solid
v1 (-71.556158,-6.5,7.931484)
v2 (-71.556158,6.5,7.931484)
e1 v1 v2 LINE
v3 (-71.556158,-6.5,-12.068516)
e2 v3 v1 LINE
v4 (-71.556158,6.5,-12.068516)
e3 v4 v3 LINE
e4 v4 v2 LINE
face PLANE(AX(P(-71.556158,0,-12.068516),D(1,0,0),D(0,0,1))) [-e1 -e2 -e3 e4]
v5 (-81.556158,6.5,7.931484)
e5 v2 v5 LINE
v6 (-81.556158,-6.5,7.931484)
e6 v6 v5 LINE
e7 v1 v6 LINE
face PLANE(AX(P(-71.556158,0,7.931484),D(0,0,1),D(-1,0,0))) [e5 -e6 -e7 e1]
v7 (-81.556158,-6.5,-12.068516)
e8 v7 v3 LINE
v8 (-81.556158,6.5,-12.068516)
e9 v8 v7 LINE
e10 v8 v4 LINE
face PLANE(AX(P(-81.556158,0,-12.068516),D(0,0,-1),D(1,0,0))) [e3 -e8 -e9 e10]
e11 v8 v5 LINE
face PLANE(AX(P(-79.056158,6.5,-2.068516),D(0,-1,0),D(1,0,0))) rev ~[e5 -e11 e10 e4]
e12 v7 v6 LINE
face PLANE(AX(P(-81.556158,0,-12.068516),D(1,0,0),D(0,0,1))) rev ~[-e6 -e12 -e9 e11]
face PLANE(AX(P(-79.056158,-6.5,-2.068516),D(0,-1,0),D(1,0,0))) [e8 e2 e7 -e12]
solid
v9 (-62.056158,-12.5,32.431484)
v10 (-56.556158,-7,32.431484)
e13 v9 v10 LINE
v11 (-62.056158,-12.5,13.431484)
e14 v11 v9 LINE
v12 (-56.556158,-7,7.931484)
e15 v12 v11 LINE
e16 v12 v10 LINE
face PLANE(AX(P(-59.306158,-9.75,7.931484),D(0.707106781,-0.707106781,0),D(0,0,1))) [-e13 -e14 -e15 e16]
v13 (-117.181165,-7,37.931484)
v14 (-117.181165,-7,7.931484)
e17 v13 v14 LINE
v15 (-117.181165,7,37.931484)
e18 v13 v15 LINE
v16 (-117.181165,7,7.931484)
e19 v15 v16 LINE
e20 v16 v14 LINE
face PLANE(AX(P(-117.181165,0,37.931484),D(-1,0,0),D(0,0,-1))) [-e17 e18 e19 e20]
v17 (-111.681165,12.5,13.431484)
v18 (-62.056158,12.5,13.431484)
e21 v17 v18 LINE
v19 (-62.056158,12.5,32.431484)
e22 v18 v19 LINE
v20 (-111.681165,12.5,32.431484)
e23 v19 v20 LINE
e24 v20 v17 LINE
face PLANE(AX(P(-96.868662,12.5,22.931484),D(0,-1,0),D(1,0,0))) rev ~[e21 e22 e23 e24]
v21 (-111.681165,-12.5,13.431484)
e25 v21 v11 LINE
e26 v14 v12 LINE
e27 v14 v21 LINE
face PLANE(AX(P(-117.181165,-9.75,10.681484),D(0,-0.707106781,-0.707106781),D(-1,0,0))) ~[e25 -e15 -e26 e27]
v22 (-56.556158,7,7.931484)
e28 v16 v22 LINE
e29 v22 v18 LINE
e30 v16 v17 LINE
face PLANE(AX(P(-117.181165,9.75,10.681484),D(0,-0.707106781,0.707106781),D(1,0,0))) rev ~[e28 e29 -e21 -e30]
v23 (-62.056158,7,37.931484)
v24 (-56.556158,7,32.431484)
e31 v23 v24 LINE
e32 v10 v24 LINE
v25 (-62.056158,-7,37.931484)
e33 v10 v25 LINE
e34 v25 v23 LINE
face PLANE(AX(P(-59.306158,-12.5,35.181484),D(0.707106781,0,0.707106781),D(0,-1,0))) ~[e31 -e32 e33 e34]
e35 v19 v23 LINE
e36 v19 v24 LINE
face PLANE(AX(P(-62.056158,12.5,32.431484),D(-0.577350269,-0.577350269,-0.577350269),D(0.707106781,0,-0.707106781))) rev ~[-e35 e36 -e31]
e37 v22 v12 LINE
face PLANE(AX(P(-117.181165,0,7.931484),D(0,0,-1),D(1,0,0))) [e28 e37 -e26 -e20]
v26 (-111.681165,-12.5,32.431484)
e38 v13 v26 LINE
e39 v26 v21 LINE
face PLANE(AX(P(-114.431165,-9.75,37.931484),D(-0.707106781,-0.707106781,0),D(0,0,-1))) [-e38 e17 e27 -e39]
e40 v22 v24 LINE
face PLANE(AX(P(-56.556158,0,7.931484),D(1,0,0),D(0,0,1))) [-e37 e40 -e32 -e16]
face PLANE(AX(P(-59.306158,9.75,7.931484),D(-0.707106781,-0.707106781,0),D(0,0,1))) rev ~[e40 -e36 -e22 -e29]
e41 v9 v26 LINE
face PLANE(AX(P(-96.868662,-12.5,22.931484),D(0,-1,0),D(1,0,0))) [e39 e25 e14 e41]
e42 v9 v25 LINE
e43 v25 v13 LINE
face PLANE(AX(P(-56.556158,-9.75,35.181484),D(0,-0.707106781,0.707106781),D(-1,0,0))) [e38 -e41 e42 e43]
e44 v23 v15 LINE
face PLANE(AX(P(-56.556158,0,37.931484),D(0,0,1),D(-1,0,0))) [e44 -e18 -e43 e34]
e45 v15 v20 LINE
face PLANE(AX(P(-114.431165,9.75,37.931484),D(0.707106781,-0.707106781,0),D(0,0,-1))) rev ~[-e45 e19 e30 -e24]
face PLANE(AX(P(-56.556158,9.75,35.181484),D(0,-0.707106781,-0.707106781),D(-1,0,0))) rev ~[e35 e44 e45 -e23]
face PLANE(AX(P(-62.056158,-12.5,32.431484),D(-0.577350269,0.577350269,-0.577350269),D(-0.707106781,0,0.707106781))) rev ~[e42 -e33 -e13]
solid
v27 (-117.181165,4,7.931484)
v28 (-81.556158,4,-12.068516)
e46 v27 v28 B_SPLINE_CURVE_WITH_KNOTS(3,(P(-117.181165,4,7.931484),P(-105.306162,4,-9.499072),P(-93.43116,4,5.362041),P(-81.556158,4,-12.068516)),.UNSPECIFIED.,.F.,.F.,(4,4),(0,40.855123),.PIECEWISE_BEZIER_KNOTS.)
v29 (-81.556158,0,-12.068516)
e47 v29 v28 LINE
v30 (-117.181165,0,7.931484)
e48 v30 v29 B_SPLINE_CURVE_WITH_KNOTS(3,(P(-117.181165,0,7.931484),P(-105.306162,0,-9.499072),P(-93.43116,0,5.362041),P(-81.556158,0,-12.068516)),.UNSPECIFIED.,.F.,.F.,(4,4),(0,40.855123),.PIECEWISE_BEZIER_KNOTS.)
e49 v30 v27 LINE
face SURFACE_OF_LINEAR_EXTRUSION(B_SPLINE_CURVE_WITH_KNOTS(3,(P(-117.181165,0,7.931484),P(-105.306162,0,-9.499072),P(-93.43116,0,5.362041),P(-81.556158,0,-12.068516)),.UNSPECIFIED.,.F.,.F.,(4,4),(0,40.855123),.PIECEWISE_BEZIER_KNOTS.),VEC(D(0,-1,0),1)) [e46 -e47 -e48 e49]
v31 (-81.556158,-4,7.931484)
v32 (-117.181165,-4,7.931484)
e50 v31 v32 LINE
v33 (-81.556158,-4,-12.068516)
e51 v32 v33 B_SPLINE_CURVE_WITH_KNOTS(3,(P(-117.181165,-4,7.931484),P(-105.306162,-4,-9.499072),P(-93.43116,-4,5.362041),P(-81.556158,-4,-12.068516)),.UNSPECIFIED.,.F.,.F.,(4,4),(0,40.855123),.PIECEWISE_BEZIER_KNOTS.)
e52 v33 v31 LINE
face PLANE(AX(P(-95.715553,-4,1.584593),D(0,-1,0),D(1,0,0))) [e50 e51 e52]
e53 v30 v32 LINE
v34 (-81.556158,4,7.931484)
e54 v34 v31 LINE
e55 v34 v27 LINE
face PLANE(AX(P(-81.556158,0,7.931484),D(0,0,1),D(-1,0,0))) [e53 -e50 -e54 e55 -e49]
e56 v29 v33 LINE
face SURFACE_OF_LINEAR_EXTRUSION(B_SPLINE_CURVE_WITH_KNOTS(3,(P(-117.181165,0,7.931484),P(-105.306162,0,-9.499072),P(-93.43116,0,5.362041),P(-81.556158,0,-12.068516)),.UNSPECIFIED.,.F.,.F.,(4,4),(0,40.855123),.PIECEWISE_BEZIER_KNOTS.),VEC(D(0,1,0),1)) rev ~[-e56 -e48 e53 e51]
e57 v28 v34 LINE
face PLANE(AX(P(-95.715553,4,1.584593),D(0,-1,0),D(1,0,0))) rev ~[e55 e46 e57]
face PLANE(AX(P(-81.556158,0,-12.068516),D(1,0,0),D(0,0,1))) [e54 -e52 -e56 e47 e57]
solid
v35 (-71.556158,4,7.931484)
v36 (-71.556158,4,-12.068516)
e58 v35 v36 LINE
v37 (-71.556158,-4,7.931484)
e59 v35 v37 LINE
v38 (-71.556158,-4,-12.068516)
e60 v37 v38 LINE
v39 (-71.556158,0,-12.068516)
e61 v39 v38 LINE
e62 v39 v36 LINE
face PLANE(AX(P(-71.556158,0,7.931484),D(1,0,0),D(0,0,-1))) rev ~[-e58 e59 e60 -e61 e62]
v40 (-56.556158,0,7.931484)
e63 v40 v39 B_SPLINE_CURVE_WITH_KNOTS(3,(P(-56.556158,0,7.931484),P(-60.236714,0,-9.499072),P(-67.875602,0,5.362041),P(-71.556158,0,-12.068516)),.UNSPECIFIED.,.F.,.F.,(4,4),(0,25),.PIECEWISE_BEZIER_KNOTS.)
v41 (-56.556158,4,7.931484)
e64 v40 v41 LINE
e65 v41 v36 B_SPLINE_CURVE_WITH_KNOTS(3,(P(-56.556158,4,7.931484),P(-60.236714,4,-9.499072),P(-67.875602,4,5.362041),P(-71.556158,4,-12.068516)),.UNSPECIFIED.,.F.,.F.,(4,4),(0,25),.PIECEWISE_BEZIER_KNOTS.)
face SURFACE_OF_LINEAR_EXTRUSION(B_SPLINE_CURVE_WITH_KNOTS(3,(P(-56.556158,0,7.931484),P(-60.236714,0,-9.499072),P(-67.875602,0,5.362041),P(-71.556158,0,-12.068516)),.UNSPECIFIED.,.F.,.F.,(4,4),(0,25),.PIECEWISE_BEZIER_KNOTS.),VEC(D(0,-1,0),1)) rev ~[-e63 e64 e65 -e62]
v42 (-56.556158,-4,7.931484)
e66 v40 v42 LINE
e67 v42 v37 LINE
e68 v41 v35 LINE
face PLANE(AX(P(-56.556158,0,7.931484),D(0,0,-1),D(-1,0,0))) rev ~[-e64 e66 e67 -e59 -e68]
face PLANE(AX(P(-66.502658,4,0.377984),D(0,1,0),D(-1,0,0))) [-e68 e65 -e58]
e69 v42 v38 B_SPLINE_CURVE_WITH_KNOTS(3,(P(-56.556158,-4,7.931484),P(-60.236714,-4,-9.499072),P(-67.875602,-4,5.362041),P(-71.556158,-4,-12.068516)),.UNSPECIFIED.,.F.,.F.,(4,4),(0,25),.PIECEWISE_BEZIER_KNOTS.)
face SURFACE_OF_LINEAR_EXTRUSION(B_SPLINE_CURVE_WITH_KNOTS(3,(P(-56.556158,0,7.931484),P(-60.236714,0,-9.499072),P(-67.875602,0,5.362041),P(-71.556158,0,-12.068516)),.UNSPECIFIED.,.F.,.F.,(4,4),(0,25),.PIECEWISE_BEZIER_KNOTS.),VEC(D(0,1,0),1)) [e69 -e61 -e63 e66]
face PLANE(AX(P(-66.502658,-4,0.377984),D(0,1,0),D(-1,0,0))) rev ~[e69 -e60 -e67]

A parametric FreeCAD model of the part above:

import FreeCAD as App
import Part
import Sketcher


def edges_at(feature, points):
    """Names of the edges that pass closest to the given points."""
    edges = feature.Shape.Edges
    near = lambda p: min(range(len(edges)), key=lambda i: edges[i].distToShape(Part.Vertex(*p))[0])
    return sorted({f"Edge{near(p) + 1}" for p in points})

doc = App.newDocument("Part")
body = doc.addObject("PartDesign::Body", "Body")
body.AllowCompound = True

# Sketch on XZ plane
sketch1 = body.newObject("Sketcher::SketchObject", "Sketch")
sketch1.AttachmentSupport = (doc.getObject("XZ_Plane"), [""])
sketch1.MapMode = "FlatFace"
sketch1.addGeometry([
    Part.BSplineCurve([App.Vector(-56.556158, 7.931484, 0), App.Vector(-60.236714, -9.499072, 0), App.Vector(-67.875602, 5.362041, 0), App.Vector(-71.556158, -12.068516, 0)], [4, 4], [0, 25], False, 3, [1, 1, 1, 1], False),  # 0
    Part.LineSegment(App.Vector(-56.556158, 7.931484, 0), App.Vector(-71.556158, 7.931484, 0)),  # 1
    Part.LineSegment(App.Vector(-71.556158, 7.931484, 0), App.Vector(-71.556158, -12.068516, 0)),  # 2
    Part.LineSegment(App.Vector(-81.556158, -12.068516, 0), App.Vector(-81.556158, 7.931484, 0)),  # 3
    Part.LineSegment(App.Vector(-81.556158, 7.931484, 0), App.Vector(-117.181165, 7.931484, 0)),  # 4
    Part.BSplineCurve([App.Vector(-117.181165, 7.931484, 0), App.Vector(-105.306162, -9.499072, 0), App.Vector(-93.43116, 5.362041, 0), App.Vector(-81.556158, -12.068516, 0)], [4, 4], [0, 40.855123], False, 3, [1, 1, 1, 1], False),  # 5
], False)
sketch1.addConstraint([
    Sketcher.Constraint("Block", 0),
    Sketcher.Constraint("Block", 5),
    Sketcher.Constraint("Coincident", 0, 1, 1, 1),
    Sketcher.Constraint("Coincident", 1, 2, 2, 1),
    Sketcher.Constraint("Coincident", 2, 2, 0, 2),
    Sketcher.Constraint("Coincident", 3, 2, 4, 1),
    Sketcher.Constraint("Coincident", 4, 2, 5, 1),
    Sketcher.Constraint("Coincident", 5, 2, 3, 1),
    Sketcher.Constraint("Horizontal", 1),
    Sketcher.Constraint("Vertical", 2),
    Sketcher.Constraint("Vertical", 3),
    Sketcher.Constraint("Horizontal", 4),
])
pad1 = body.newObject("PartDesign::Pad", "Pad")
pad1.Profile = sketch1
pad1.Length = 8
pad1.Midplane = True
body2 = doc.addObject("PartDesign::Body", "Body001")

# Sketch on XZ plane
sketch2 = body2.newObject("Sketcher::SketchObject", "Sketch001")
sketch2.AttachmentSupport = (doc.getObject("XZ_Plane001"), [""])
sketch2.MapMode = "FlatFace"
sketch2.addGeometry([
    Part.LineSegment(App.Vector(-82, 8, 0), App.Vector(-82, -12, 0)),
    Part.LineSegment(App.Vector(-82, -12, 0), App.Vector(-72, -12, 0)),
    Part.LineSegment(App.Vector(-72, -12, 0), App.Vector(-72, 8, 0)),
    Part.LineSegment(App.Vector(-72, 8, 0), App.Vector(-82, 8, 0)),
], False)
sketch2.addConstraint([
    Sketcher.Constraint("Coincident", 0, 2, 1, 1),
    Sketcher.Constraint("Coincident", 1, 2, 2, 1),
    Sketcher.Constraint("Coincident", 2, 2, 3, 1),
    Sketcher.Constraint("Coincident", 3, 2, 0, 1),
    Sketcher.Constraint("Vertical", 0),
    Sketcher.Constraint("Horizontal", 1),
    Sketcher.Constraint("Vertical", 2),
    Sketcher.Constraint("Horizontal", 3),
    Sketcher.Constraint("DistanceX", 1, 1, 1, 2, 10.0),
    Sketcher.Constraint("DistanceY", 0, 2, 0, 1, 20.0),
    Sketcher.Constraint("DistanceX", 0, 2, -1, 1, 81.556158),
    Sketcher.Constraint("DistanceY", 0, 2, -1, 1, 12.068516),
])
pad2 = body2.newObject("PartDesign::Pad", "Pad001")
pad2.Profile = sketch2
pad2.Length = 13
pad2.Midplane = True
body3 = doc.addObject("PartDesign::Body", "Body002")

# Sketch on XZ plane
sketch3 = body3.newObject("Sketcher::SketchObject", "Sketch002")
sketch3.AttachmentSupport = (doc.getObject("XZ_Plane002"), [""])
sketch3.MapMode = "FlatFace"
sketch3.addGeometry([
    Part.LineSegment(App.Vector(-117, 38, 0), App.Vector(-117, 8, 0)),
    Part.LineSegment(App.Vector(-117, 8, 0), App.Vector(-57, 8, 0)),
    Part.LineSegment(App.Vector(-57, 8, 0), App.Vector(-57, 38, 0)),
    Part.LineSegment(App.Vector(-57, 38, 0), App.Vector(-117, 38, 0)),
], False)
sketch3.addConstraint([
    Sketcher.Constraint("Coincident", 0, 2, 1, 1),
    Sketcher.Constraint("Coincident", 1, 2, 2, 1),
    Sketcher.Constraint("Coincident", 2, 2, 3, 1),
    Sketcher.Constraint("Coincident", 3, 2, 0, 1),
    Sketcher.Constraint("Vertical", 0),
    Sketcher.Constraint("Horizontal", 1),
    Sketcher.Constraint("Vertical", 2),
    Sketcher.Constraint("Horizontal", 3),
    Sketcher.Constraint("DistanceY", 0, 2, 0, 1, 30.0),
    Sketcher.Constraint("DistanceX", 1, 1, 1, 2, 60.625007),
    Sketcher.Constraint("DistanceX", 1, 2, -1, 1, 56.556158),
    Sketcher.Constraint("DistanceY", -1, 1, 0, 2, 7.931484),
])
pad3 = body3.newObject("PartDesign::Pad", "Pad002")
pad3.Profile = sketch3
pad3.Length = 25
pad3.Midplane = True
doc.recompute()

chamfer = body3.newObject("PartDesign::Chamfer", "Chamfer")
chamfer.Base = (pad3, edges_at(pad3, [
    (-56.556, 0, 37.931),
    (-56.556, -12.5, 22.931),
    (-86.869, -12.5, 37.931),
    (-86.869, 12.5, 37.931),
    (-56.556, 12.5, 22.931),
    (-117.181, 12.5, 22.931),
    (-117.181, -12.5, 22.931),
    (-86.869, -12.5, 7.931),
    (-86.869, 12.5, 7.931),
]))
chamfer.Size = 5.5

doc.recompute()
